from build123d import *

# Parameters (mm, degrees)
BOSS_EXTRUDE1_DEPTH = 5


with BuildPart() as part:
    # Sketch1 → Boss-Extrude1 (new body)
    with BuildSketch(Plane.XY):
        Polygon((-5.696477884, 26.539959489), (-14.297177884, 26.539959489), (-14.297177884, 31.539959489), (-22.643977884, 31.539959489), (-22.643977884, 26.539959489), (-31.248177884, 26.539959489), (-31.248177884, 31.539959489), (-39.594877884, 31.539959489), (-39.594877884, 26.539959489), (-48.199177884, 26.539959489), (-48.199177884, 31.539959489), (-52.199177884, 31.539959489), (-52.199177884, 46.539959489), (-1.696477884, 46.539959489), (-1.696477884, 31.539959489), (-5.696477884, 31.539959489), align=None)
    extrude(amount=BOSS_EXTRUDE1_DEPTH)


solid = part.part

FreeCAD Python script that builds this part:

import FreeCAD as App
import Part
import Sketcher
Q = App.Units.Quantity

doc = App.newDocument("Part")
params = doc.addObject("Spreadsheet::Sheet", "Params")
for row, (alias, value) in enumerate([
    ("sketch1_width", "4 mm"),
    ("sketch1_height", "5 mm"),
    ("sketch1_height2", "15 mm"),
    ("pad1_length", "5 mm"),
], start=1):
    params.set(f"A{row}", alias)
    params.set(f"B{row}", "=" + value)
    params.setAlias(f"B{row}", alias)

body = doc.addObject("PartDesign::Body", "Body")

# Sketch on XY plane
sketch1 = body.newObject("Sketcher::SketchObject", "Sketch")
sketch1.AttachmentSupport = (doc.getObject("XY_Plane"), [""])
sketch1.MapMode = "FlatFace"
sketch1.addGeometry([
    Part.LineSegment(App.Vector(-14.297178, 26.539959, 0), App.Vector(-5.696478, 26.539959, 0)),  # 0
    Part.LineSegment(App.Vector(-5.696478, 26.539959, 0), App.Vector(-5.696478, 31.539959, 0)),  # 1
    Part.LineSegment(App.Vector(-5.696478, 31.539959, 0), App.Vector(-1.696478, 31.539959, 0)),  # 2
    Part.LineSegment(App.Vector(-1.696478, 31.539959, 0), App.Vector(-1.696478, 46.539959, 0)),  # 3
    Part.LineSegment(App.Vector(-1.696478, 46.539959, 0), App.Vector(-52.199178, 46.539959, 0)),  # 4
    Part.LineSegment(App.Vector(-52.199178, 46.539959, 0), App.Vector(-52.199178, 31.539959, 0)),  # 5
    Part.LineSegment(App.Vector(-52.199178, 31.539959, 0), App.Vector(-48.199178, 31.539959, 0)),  # 6
    Part.LineSegment(App.Vector(-48.199178, 31.539959, 0), App.Vector(-48.199178, 26.539959, 0)),  # 7
    Part.LineSegment(App.Vector(-48.199178, 26.539959, 0), App.Vector(-39.594878, 26.539959, 0)),  # 8
    Part.LineSegment(App.Vector(-39.594878, 26.539959, 0), App.Vector(-39.594878, 31.539959, 0)),  # 9
    Part.LineSegment(App.Vector(-39.594878, 31.539959, 0), App.Vector(-31.248178, 31.539959, 0)),  # 10
    Part.LineSegment(App.Vector(-31.248178, 31.539959, 0), App.Vector(-31.248178, 26.539959, 0)),  # 11
    Part.LineSegment(App.Vector(-31.248178, 26.539959, 0), App.Vector(-22.643978, 26.539959, 0)),  # 12
    Part.LineSegment(App.Vector(-22.643978, 26.539959, 0), App.Vector(-22.643978, 31.539959, 0)),  # 13
    Part.LineSegment(App.Vector(-22.643978, 31.539959, 0), App.Vector(-14.297178, 31.539959, 0)),  # 14
    Part.LineSegment(App.Vector(-14.297178, 31.539959, 0), App.Vector(-14.297178, 26.539959, 0)),  # 15
], False)
sketch1.addConstraint([
    Sketcher.Constraint("Coincident", 0, 2, 1, 1),
    Sketcher.Constraint("Coincident", 1, 2, 2, 1),
    Sketcher.Constraint("Coincident", 2, 2, 3, 1),
    Sketcher.Constraint("Coincident", 3, 2, 4, 1),
    Sketcher.Constraint("Coincident", 4, 2, 5, 1),
    Sketcher.Constraint("Coincident", 5, 2, 6, 1),
    Sketcher.Constraint("Coincident", 6, 2, 7, 1),
    Sketcher.Constraint("Coincident", 7, 2, 8, 1),
    Sketcher.Constraint("Coincident", 8, 2, 9, 1),
    Sketcher.Constraint("Coincident", 9, 2, 10, 1),
    Sketcher.Constraint("Coincident", 10, 2, 11, 1),
    Sketcher.Constraint("Coincident", 11, 2, 12, 1),
    Sketcher.Constraint("Coincident", 12, 2, 13, 1),
    Sketcher.Constraint("Coincident", 13, 2, 14, 1),
    Sketcher.Constraint("Coincident", 14, 2, 15, 1),
    Sketcher.Constraint("Coincident", 15, 2, 0, 1),
    Sketcher.Constraint("Horizontal", 0),
    Sketcher.Constraint("Vertical", 1),
    Sketcher.Constraint("Horizontal", 2),
    Sketcher.Constraint("Vertical", 3),
    Sketcher.Constraint("Horizontal", 4),
    Sketcher.Constraint("Vertical", 5),
    Sketcher.Constraint("Horizontal", 6),
    Sketcher.Constraint("Vertical", 7),
    Sketcher.Constraint("Horizontal", 8),
    Sketcher.Constraint("Vertical", 9),
    Sketcher.Constraint("Horizontal", 10),
    Sketcher.Constraint("Vertical", 11),
    Sketcher.Constraint("Horizontal", 12),
    Sketcher.Constraint("Vertical", 13),
    Sketcher.Constraint("Horizontal", 14),
    Sketcher.Constraint("Vertical", 15),
    Sketcher.Constraint("Horizontal", 2, 2, 5, 2),
    Sketcher.Constraint("Horizontal", 0, 2, 7, 2),
    Sketcher.Constraint("Horizontal", 6, 2, 9, 2),
    Sketcher.Constraint("Horizontal", 8, 2, 11, 2),
    Sketcher.Constraint("Horizontal", 10, 2, 13, 2),
    Sketcher.Constraint("Equal", 2, 6),
    Sketcher.Constraint("DistanceX", 2, 1, 2, 2, Q("4 mm")),
    Sketcher.Constraint("DistanceY", 1, 1, 1, 2, Q("5 mm")),
    Sketcher.Constraint("DistanceY", 3, 1, 3, 2, Q("15 mm")),
    Sketcher.Constraint("DistanceX", 0, 1, 0, 2, Q("8.6007 mm")),
    Sketcher.Constraint("DistanceX", 4, 2, 4, 1, Q("50.5027 mm")),
    Sketcher.Constraint("DistanceX", 8, 1, 8, 2, Q("8.6043 mm")),
    Sketcher.Constraint("DistanceX", 10, 1, 10, 2, Q("8.3467 mm")),
    Sketcher.Constraint("DistanceX", 12, 1, 12, 2, Q("8.6042 mm")),
    Sketcher.Constraint("DistanceY", -1, 1, 0, 2, Q("26.539959 mm")),
    Sketcher.Constraint("DistanceX", 0, 2, -1, 1, Q("5.696478 mm")),
])
sketch1.setExpression("Constraints[38]", "Params.sketch1_width")
sketch1.setExpression("Constraints[39]", "Params.sketch1_height")
sketch1.setExpression("Constraints[40]", "Params.sketch1_height2")
pad1 = body.newObject("PartDesign::Pad", "Pad")
pad1.Profile = sketch1
pad1.setExpression("Length", "Params.pad1_length")

doc.recompute()
